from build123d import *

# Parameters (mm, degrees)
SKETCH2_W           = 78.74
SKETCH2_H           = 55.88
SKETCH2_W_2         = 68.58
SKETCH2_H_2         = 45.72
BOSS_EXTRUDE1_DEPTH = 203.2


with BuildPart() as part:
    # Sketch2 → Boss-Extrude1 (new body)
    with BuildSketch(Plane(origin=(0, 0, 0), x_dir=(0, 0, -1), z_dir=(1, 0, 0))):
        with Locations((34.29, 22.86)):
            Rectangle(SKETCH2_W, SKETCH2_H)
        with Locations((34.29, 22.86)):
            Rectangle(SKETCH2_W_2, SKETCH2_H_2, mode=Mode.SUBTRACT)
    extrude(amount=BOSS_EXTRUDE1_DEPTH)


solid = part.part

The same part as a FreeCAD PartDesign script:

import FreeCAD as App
import Part
import Sketcher

V = App.Vector
Q = App.Units.Quantity

doc = App.newDocument("Part")
body = doc.addObject("PartDesign::Body", "Body")

# Sketch on YZ plane
sketch1 = doc.addObject("Sketcher::SketchObject", "Sketch")
body.addObject(sketch1)
sketch1.AttachmentSupport = (doc.YZ_Plane, [""])
sketch1.MapMode = "FlatFace"
sketch1.addGeometry(Part.LineSegment(V(51, 5, 0), V(-5, 5, 0)), False)
sketch1.addGeometry(Part.LineSegment(V(-5, 5, 0), V(-5, -74, 0)), False)
sketch1.addGeometry(Part.LineSegment(V(-5, -74, 0), V(51, -74, 0)), False)
sketch1.addGeometry(Part.LineSegment(V(51, -74, 0), V(51, 5, 0)), False)
sketch1.addGeometry(Part.LineSegment(V(0, -69, 0), V(0, 0, 0)), False)
sketch1.addGeometry(Part.LineSegment(V(0, 0, 0), V(46, 0, 0)), False)
sketch1.addGeometry(Part.LineSegment(V(46, 0, 0), V(46, -69, 0)), False)
sketch1.addGeometry(Part.LineSegment(V(46, -69, 0), V(0, -69, 0)), False)
sketch1.addConstraint(Sketcher.Constraint("Coincident", 0, 2, 1, 1))
sketch1.addConstraint(Sketcher.Constraint("Coincident", 1, 2, 2, 1))
sketch1.addConstraint(Sketcher.Constraint("Coincident", 2, 2, 3, 1))
sketch1.addConstraint(Sketcher.Constraint("Coincident", 3, 2, 0, 1))
sketch1.addConstraint(Sketcher.Constraint("Coincident", 4, 2, 5, 1))
sketch1.addConstraint(Sketcher.Constraint("Coincident", 5, 2, 6, 1))
sketch1.addConstraint(Sketcher.Constraint("Coincident", 6, 2, 7, 1))
sketch1.addConstraint(Sketcher.Constraint("Coincident", 7, 2, 4, 1))
sketch1.addConstraint(Sketcher.Constraint("Horizontal", 0))
sketch1.addConstraint(Sketcher.Constraint("Vertical", 1))
sketch1.addConstraint(Sketcher.Constraint("Horizontal", 2))
sketch1.addConstraint(Sketcher.Constraint("Vertical", 3))
sketch1.addConstraint(Sketcher.Constraint("Vertical", 4))
sketch1.addConstraint(Sketcher.Constraint("Horizontal", 5))
sketch1.addConstraint(Sketcher.Constraint("Vertical", 6))
sketch1.addConstraint(Sketcher.Constraint("Horizontal", 7))
sketch1.addConstraint(Sketcher.Constraint("Coincident", 4, 2, -1, 1))
sketch1.addConstraint(Sketcher.Constraint("DistanceX", 0, 2, 0, 1, Q("2.2 in")))
sketch1.addConstraint(Sketcher.Constraint("DistanceX", 5, 1, 5, 2, Q("1.8 in")))
sketch1.addConstraint(Sketcher.Constraint("DistanceY", 1, 2, 1, 1, Q("3.1 in")))
sketch1.addConstraint(Sketcher.Constraint("DistanceY", 4, 1, 4, 2, Q("2.7 in")))
sketch1.addConstraint(Sketcher.Constraint("DistanceX", -1, 1, 2, 2, Q("2 in")))
sketch1.addConstraint(Sketcher.Constraint("DistanceY", -1, 1, 0, 2, Q("0.2 in")))
pad1 = doc.addObject("PartDesign::Pad", "Pad")
body.addObject(pad1)
pad1.Profile = sketch1
pad1.Length = Q("8 in")

doc.recompute()
